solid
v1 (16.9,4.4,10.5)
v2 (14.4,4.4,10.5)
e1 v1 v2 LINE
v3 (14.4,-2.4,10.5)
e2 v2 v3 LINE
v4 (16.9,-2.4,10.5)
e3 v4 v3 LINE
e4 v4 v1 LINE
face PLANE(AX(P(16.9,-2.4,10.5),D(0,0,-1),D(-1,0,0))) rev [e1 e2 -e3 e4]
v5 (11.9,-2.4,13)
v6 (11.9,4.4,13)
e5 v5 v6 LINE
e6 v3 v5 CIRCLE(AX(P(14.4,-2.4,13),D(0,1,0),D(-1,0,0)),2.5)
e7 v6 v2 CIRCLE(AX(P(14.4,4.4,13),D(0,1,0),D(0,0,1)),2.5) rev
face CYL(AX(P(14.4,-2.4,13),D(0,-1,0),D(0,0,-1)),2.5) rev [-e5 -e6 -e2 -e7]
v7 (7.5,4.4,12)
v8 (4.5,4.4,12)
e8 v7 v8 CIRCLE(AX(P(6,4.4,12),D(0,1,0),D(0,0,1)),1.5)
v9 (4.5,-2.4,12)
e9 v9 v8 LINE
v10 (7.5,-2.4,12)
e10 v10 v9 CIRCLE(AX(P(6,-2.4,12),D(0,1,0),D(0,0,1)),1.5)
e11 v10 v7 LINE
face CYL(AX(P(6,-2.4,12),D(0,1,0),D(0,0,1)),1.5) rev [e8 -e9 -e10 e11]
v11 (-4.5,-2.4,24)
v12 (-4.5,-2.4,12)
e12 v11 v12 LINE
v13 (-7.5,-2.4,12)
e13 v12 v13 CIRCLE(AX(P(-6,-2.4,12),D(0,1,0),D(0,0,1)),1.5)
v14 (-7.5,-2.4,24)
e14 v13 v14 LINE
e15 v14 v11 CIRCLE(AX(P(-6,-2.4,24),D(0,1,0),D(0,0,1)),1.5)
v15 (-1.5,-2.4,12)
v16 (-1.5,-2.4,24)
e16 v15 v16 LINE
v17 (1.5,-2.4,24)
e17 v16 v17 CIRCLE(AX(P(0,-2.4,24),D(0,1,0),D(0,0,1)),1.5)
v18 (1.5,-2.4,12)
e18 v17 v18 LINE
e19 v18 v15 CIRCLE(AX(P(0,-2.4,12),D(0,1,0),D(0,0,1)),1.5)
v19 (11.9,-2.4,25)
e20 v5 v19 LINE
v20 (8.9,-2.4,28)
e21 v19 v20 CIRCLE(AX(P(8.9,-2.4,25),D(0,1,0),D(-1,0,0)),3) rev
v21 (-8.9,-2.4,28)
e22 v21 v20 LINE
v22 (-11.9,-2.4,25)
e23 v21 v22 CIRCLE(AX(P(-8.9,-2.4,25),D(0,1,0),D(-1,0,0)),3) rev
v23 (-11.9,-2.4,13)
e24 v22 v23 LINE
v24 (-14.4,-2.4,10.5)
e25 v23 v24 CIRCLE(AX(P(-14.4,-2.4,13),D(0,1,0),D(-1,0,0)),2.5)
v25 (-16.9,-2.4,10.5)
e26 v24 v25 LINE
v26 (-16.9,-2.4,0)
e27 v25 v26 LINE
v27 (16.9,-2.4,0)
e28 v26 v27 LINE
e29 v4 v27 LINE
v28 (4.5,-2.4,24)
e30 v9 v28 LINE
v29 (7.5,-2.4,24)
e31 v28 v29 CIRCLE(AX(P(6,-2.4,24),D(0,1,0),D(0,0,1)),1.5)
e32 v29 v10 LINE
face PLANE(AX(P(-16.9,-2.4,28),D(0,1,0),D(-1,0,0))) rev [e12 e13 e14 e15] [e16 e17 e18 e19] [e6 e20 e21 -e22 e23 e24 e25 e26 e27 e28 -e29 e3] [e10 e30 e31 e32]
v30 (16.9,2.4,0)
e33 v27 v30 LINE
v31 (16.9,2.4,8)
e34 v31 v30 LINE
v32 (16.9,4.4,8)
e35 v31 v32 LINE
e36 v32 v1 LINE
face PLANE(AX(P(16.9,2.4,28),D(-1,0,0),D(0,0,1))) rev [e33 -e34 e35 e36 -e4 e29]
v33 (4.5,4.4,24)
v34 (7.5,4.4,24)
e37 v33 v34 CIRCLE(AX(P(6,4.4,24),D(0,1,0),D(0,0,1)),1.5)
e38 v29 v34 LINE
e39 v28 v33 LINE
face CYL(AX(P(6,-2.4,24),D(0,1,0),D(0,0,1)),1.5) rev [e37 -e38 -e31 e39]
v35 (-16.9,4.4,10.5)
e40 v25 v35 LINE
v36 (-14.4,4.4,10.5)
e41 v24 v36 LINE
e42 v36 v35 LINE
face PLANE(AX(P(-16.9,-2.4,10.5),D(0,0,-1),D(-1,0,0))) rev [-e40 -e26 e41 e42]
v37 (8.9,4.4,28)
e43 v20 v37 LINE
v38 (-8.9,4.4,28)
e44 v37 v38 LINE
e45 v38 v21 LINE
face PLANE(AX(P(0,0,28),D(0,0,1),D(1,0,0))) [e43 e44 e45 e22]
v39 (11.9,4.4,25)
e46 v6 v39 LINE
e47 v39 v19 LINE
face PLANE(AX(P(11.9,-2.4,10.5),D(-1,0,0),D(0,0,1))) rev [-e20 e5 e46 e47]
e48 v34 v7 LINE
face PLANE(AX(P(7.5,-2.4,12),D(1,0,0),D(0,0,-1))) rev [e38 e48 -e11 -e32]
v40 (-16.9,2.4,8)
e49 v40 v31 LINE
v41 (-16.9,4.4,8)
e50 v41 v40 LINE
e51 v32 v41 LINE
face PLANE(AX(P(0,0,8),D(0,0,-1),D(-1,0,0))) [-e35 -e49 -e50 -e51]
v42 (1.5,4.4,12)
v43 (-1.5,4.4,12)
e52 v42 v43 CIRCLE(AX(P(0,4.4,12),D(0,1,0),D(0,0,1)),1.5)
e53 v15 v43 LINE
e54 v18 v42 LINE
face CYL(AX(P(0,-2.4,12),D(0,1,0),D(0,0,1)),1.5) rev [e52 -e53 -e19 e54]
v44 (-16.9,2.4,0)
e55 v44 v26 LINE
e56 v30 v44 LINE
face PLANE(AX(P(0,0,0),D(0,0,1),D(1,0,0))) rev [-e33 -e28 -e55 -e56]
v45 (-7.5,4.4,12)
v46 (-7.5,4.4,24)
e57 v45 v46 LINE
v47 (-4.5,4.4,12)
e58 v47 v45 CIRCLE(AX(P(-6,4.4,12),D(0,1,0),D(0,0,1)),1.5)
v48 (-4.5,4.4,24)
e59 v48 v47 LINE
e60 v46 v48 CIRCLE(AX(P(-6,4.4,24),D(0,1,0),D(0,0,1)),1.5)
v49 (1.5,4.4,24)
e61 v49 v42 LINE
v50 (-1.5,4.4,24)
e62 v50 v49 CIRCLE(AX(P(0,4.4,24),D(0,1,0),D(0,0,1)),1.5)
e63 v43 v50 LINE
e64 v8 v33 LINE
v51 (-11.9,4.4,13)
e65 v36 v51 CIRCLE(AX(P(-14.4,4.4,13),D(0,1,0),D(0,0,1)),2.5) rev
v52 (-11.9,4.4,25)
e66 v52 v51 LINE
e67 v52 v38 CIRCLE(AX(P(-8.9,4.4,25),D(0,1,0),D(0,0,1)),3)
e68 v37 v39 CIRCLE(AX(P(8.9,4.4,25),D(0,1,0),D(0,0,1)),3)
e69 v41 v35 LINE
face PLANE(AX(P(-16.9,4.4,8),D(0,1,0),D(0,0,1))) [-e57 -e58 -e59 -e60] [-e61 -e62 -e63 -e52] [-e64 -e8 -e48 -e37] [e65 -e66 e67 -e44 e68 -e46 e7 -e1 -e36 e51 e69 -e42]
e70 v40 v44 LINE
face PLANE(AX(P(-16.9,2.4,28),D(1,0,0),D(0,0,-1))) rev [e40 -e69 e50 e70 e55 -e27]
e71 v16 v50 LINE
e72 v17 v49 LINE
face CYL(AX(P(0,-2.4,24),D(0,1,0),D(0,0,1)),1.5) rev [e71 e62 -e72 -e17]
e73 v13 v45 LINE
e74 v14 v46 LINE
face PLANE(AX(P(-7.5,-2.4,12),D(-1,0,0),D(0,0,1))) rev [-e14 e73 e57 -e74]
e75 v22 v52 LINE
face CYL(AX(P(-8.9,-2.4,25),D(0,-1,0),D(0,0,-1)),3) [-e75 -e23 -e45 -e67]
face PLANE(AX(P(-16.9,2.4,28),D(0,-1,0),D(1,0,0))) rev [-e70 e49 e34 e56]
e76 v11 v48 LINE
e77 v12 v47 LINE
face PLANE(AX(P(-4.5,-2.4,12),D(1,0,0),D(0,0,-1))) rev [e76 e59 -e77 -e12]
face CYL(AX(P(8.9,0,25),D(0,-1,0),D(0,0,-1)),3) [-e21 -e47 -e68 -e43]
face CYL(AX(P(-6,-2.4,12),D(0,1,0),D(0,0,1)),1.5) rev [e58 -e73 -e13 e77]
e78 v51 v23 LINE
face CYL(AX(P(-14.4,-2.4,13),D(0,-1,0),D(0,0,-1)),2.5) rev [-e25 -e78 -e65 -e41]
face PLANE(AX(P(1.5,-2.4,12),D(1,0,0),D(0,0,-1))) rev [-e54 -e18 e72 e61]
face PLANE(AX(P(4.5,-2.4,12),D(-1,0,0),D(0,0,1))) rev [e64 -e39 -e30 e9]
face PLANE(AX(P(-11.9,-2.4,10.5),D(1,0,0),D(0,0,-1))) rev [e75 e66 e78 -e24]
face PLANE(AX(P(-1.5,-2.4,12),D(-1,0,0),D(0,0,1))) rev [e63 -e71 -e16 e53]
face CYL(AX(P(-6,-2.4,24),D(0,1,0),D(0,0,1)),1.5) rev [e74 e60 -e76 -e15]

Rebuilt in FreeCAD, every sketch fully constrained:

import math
import FreeCAD as App
import Part
import Sketcher
Q = App.Units.Quantity


def edges_at(feature, points):
    """Names of the edges that pass closest to the given points."""
    edges = feature.Shape.Edges
    near = lambda p: min(range(len(edges)), key=lambda i: edges[i].distToShape(Part.Vertex(*p))[0])
    return sorted({f"Edge{near(p) + 1}" for p in points})

doc = App.newDocument("Part")
params = doc.addObject("Spreadsheet::Sheet", "Params")
for row, (alias, value) in enumerate([
    ("sketch1_width", "33.8 mm"),
    ("sketch1_height", "4.8 mm"),
    ("pad1_length", "28 mm"),
    ("sketch2_height", "2 mm"),
    ("sketch2_width", "33.8 mm"),
    ("pad2_length", "20 mm"),
    ("sketch3_radius", "1.5 mm"),
    ("sketch3_height", "12 mm"),
    ("sketch4_width", "5 mm"),
    ("sketch4_height", "17.5 mm"),
    ("fillet_radius", "3 mm"),
    ("fillet2_radius", "2.5 mm"),
], start=1):
    params.set(f"A{row}", alias)
    params.set(f"B{row}", "=" + value)
    params.setAlias(f"B{row}", alias)

body = doc.addObject("PartDesign::Body", "Body")

# Sketch on XY plane
sketch1 = body.newObject("Sketcher::SketchObject", "Sketch")
sketch1.AttachmentSupport = (doc.getObject("XY_Plane"), [""])
sketch1.MapMode = "FlatFace"
sketch1.addGeometry([
    Part.LineSegment(App.Vector(-16.9, 2.4, 0), App.Vector(-16.9, -2.4, 0)),
    Part.LineSegment(App.Vector(-16.9, -2.4, 0), App.Vector(16.9, -2.4, 0)),
    Part.LineSegment(App.Vector(16.9, -2.4, 0), App.Vector(16.9, 2.4, 0)),
    Part.LineSegment(App.Vector(16.9, 2.4, 0), App.Vector(-16.9, 2.4, 0)),
], False)
sketch1.addConstraint([
    Sketcher.Constraint("Coincident", 0, 2, 1, 1),
    Sketcher.Constraint("Coincident", 1, 2, 2, 1),
    Sketcher.Constraint("Coincident", 2, 2, 3, 1),
    Sketcher.Constraint("Coincident", 3, 2, 0, 1),
    Sketcher.Constraint("Vertical", 0),
    Sketcher.Constraint("Horizontal", 1),
    Sketcher.Constraint("Vertical", 2),
    Sketcher.Constraint("Horizontal", 3),
    Sketcher.Constraint("Symmetric", 0, 2, 2, 2, -1, 1),
    Sketcher.Constraint("DistanceX", 1, 1, 1, 2, Q("33.8 mm")),
    Sketcher.Constraint("DistanceY", 0, 2, 0, 1, Q("4.8 mm")),
])
sketch1.setExpression("Constraints[9]", "Params.sketch1_width")
sketch1.setExpression("Constraints[10]", "Params.sketch1_height")
pad1 = body.newObject("PartDesign::Pad", "Pad")
pad1.Profile = sketch1
pad1.setExpression("Length", "Params.pad1_length")

# Sketch on XY plane
sketch2 = body.newObject("Sketcher::SketchObject", "Sketch001")
sketch2.AttachmentSupport = (doc.getObject("XY_Plane"), [""])
sketch2.MapMode = "FlatFace"
sketch2.AttachmentOffset = App.Placement(App.Vector(0, 0, 28), App.Rotation())
sketch2.addGeometry([
    Part.LineSegment(App.Vector(-16.9, 4.4, 0), App.Vector(-16.9, 2.4, 0)),
    Part.LineSegment(App.Vector(-16.9, 2.4, 0), App.Vector(16.9, 2.4, 0)),
    Part.LineSegment(App.Vector(16.9, 2.4, 0), App.Vector(16.9, 4.4, 0)),
    Part.LineSegment(App.Vector(16.9, 4.4, 0), App.Vector(-16.9, 4.4, 0)),
], False)
sketch2.addConstraint([
    Sketcher.Constraint("Coincident", 0, 2, 1, 1),
    Sketcher.Constraint("Coincident", 1, 2, 2, 1),
    Sketcher.Constraint("Coincident", 2, 2, 3, 1),
    Sketcher.Constraint("Coincident", 3, 2, 0, 1),
    Sketcher.Constraint("Vertical", 0),
    Sketcher.Constraint("Horizontal", 1),
    Sketcher.Constraint("Vertical", 2),
    Sketcher.Constraint("Horizontal", 3),
    Sketcher.Constraint("DistanceY", 0, 2, 0, 1, Q("2 mm")),
    Sketcher.Constraint("DistanceX", 1, 1, 1, 2, Q("33.8 mm")),
    Sketcher.Constraint("DistanceX", 0, 2, -1, 1, Q("16.9 mm")),
    Sketcher.Constraint("DistanceY", -1, 1, 0, 2, Q("2.4 mm")),
])
sketch2.setExpression("Constraints[8]", "Params.sketch2_height")
sketch2.setExpression("Constraints[9]", "Params.sketch2_width")
pad2 = body.newObject("PartDesign::Pad", "Pad001")
pad2.Profile = sketch2
pad2.setExpression("Length", "Params.pad2_length")
pad2.Reversed = True

# Sketch on XZ plane
sketch3 = body.newObject("Sketcher::SketchObject", "Sketch002")
sketch3.AttachmentSupport = (doc.getObject("XZ_Plane"), [""])
sketch3.MapMode = "FlatFace"
sketch3.AttachmentOffset = App.Placement(App.Vector(0, 0, -4.4), App.Rotation())
sketch3.addGeometry([
    Part.LineSegment(App.Vector(1.5, 24, 0), App.Vector(1.5, 12, 0)),  # 0
    Part.ArcOfCircle(Part.Circle(App.Vector(0, 12, 0), App.Vector(0, 0, 1), 1.5), math.radians(180), math.radians(360)),  # 1
    Part.LineSegment(App.Vector(-1.5, 12, 0), App.Vector(-1.5, 24, 0)),  # 2
    Part.ArcOfCircle(Part.Circle(App.Vector(0, 24, 0), App.Vector(0, 0, 1), 1.5), math.radians(0), math.radians(180)),  # 3
    Part.LineSegment(App.Vector(7.5, 24, 0), App.Vector(7.5, 12, 0)),  # 4
    Part.ArcOfCircle(Part.Circle(App.Vector(6, 12, 0), App.Vector(0, 0, 1), 1.5), math.radians(180), math.radians(360)),  # 5
    Part.LineSegment(App.Vector(4.5, 12, 0), App.Vector(4.5, 24, 0)),  # 6
    Part.ArcOfCircle(Part.Circle(App.Vector(6, 24, 0), App.Vector(0, 0, 1), 1.5), math.radians(0), math.radians(180)),  # 7
    Part.LineSegment(App.Vector(-4.5, 24, 0), App.Vector(-4.5, 12, 0)),  # 8
    Part.ArcOfCircle(Part.Circle(App.Vector(-6, 12, 0), App.Vector(0, 0, 1), 1.5), math.radians(180), math.radians(360)),  # 9
    Part.LineSegment(App.Vector(-7.5, 12, 0), App.Vector(-7.5, 24, 0)),  # 10
    Part.ArcOfCircle(Part.Circle(App.Vector(-6, 24, 0), App.Vector(0, 0, 1), 1.5), math.radians(0), math.radians(180)),  # 11
], False)
sketch3.addConstraint([
    Sketcher.Constraint("Tangent", 0, 2, 1, 2),
    Sketcher.Constraint("Tangent", 1, 1, 2, 1),
    Sketcher.Constraint("Tangent", 2, 2, 3, 2),
    Sketcher.Constraint("Tangent", 3, 1, 0, 1),
    Sketcher.Constraint("Tangent", 4, 2, 5, 2),
    Sketcher.Constraint("Tangent", 5, 1, 6, 1),
    Sketcher.Constraint("Tangent", 6, 2, 7, 2),
    Sketcher.Constraint("Tangent", 7, 1, 4, 1),
    Sketcher.Constraint("Tangent", 8, 2, 9, 2),
    Sketcher.Constraint("Tangent", 9, 1, 10, 1),
    Sketcher.Constraint("Tangent", 10, 2, 11, 2),
    Sketcher.Constraint("Tangent", 11, 1, 8, 1),
    Sketcher.Constraint("Vertical", 0),
    Sketcher.Constraint("Vertical", 2),
    Sketcher.Constraint("Vertical", 4),
    Sketcher.Constraint("Vertical", 6),
    Sketcher.Constraint("Vertical", 8),
    Sketcher.Constraint("Vertical", 10),
    Sketcher.Constraint("Equal", 3, 5),
    Sketcher.Constraint("Equal", 7, 9),
    Sketcher.Constraint("Symmetric", 5, 3, 9, 3, -2),
    Sketcher.Constraint("PointOnObject", 1, 3, -2),
    Sketcher.Constraint("Horizontal", 1, 3, 5, 3),
    Sketcher.Constraint("Horizontal", 3, 3, 7, 3),
    Sketcher.Constraint("Horizontal", 7, 3, 11, 3),
    Sketcher.Constraint("Radius", 1, Q("1.5 mm")),
    Sketcher.Constraint("DistanceY", 0, 2, 0, 1, Q("12 mm")),
    Sketcher.Constraint("DistanceY", -1, 1, 1, 3, Q("12 mm")),
    Sketcher.Constraint("DistanceX", -1, 1, 5, 3, Q("6 mm")),
])
sketch3.setExpression("Constraints[25]", "Params.sketch3_radius")
sketch3.setExpression("Constraints[26]", "Params.sketch3_height")
pocket1 = body.newObject("PartDesign::Pocket", "Pocket")
pocket1.Profile = sketch3
pocket1.Type = "ThroughAll"
pocket1.Reversed = True

# Sketch on XZ plane
sketch4 = body.newObject("Sketcher::SketchObject", "Sketch003")
sketch4.AttachmentSupport = (doc.getObject("XZ_Plane"), [""])
sketch4.MapMode = "FlatFace"
sketch4.AttachmentOffset = App.Placement(App.Vector(0, 0, -4.4), App.Rotation())
sketch4.addGeometry([
    Part.LineSegment(App.Vector(-16.9, 10.5, 0), App.Vector(-16.9, 28, 0)),  # 0
    Part.LineSegment(App.Vector(-16.9, 28, 0), App.Vector(-11.9, 28, 0)),  # 1
    Part.LineSegment(App.Vector(-11.9, 28, 0), App.Vector(-11.9, 10.5, 0)),  # 2
    Part.LineSegment(App.Vector(-11.9, 10.5, 0), App.Vector(-16.9, 10.5, 0)),  # 3
    Part.LineSegment(App.Vector(11.9, 10.5, 0), App.Vector(11.9, 28, 0)),  # 4
    Part.LineSegment(App.Vector(11.9, 28, 0), App.Vector(16.9, 28, 0)),  # 5
    Part.LineSegment(App.Vector(16.9, 28, 0), App.Vector(16.9, 10.5, 0)),  # 6
    Part.LineSegment(App.Vector(16.9, 10.5, 0), App.Vector(11.9, 10.5, 0)),  # 7
], False)
sketch4.addConstraint([
    Sketcher.Constraint("Coincident", 0, 2, 1, 1),
    Sketcher.Constraint("Coincident", 1, 2, 2, 1),
    Sketcher.Constraint("Coincident", 2, 2, 3, 1),
    Sketcher.Constraint("Coincident", 3, 2, 0, 1),
    Sketcher.Constraint("Coincident", 4, 2, 5, 1),
    Sketcher.Constraint("Coincident", 5, 2, 6, 1),
    Sketcher.Constraint("Coincident", 6, 2, 7, 1),
    Sketcher.Constraint("Coincident", 7, 2, 4, 1),
    Sketcher.Constraint("Vertical", 0),
    Sketcher.Constraint("Horizontal", 1),
    Sketcher.Constraint("Vertical", 2),
    Sketcher.Constraint("Horizontal", 3),
    Sketcher.Constraint("Vertical", 4),
    Sketcher.Constraint("Horizontal", 5),
    Sketcher.Constraint("Vertical", 6),
    Sketcher.Constraint("Horizontal", 7),
    Sketcher.Constraint("Symmetric", 1, 2, 4, 2, -2),
    Sketcher.Constraint("Symmetric", 3, 2, 6, 2, -2),
    Sketcher.Constraint("DistanceX", 1, 1, 1, 2, Q("5 mm")),
    Sketcher.Constraint("DistanceY", 0, 1, 0, 2, Q("17.5 mm")),
    Sketcher.Constraint("DistanceY", -1, 1, 0, 2, Q("28 mm")),
    Sketcher.Constraint("DistanceX", 0, 2, -1, 1, Q("16.9 mm")),
])
sketch4.setExpression("Constraints[18]", "Params.sketch4_width")
sketch4.setExpression("Constraints[19]", "Params.sketch4_height")
pocket2 = body.newObject("PartDesign::Pocket", "Pocket001")
pocket2.Profile = sketch4
pocket2.Type = "ThroughAll"
pocket2.Reversed = True
doc.recompute()

fillet = body.newObject("PartDesign::Fillet", "Fillet")
fillet.Base = (pocket2, edges_at(pocket2, [(-11.9, 1, 28), (11.9, 1, 28)]))
fillet.setExpression("Radius", "Params.fillet_radius")
doc.recompute()

fillet2 = body.newObject("PartDesign::Fillet", "Fillet001")
fillet2.Base = (fillet, edges_at(fillet, [(-11.9, 1, 10.5), (11.9, 1, 10.5)]))
fillet2.setExpression("Radius", "Params.fillet2_radius")

doc.recompute()
